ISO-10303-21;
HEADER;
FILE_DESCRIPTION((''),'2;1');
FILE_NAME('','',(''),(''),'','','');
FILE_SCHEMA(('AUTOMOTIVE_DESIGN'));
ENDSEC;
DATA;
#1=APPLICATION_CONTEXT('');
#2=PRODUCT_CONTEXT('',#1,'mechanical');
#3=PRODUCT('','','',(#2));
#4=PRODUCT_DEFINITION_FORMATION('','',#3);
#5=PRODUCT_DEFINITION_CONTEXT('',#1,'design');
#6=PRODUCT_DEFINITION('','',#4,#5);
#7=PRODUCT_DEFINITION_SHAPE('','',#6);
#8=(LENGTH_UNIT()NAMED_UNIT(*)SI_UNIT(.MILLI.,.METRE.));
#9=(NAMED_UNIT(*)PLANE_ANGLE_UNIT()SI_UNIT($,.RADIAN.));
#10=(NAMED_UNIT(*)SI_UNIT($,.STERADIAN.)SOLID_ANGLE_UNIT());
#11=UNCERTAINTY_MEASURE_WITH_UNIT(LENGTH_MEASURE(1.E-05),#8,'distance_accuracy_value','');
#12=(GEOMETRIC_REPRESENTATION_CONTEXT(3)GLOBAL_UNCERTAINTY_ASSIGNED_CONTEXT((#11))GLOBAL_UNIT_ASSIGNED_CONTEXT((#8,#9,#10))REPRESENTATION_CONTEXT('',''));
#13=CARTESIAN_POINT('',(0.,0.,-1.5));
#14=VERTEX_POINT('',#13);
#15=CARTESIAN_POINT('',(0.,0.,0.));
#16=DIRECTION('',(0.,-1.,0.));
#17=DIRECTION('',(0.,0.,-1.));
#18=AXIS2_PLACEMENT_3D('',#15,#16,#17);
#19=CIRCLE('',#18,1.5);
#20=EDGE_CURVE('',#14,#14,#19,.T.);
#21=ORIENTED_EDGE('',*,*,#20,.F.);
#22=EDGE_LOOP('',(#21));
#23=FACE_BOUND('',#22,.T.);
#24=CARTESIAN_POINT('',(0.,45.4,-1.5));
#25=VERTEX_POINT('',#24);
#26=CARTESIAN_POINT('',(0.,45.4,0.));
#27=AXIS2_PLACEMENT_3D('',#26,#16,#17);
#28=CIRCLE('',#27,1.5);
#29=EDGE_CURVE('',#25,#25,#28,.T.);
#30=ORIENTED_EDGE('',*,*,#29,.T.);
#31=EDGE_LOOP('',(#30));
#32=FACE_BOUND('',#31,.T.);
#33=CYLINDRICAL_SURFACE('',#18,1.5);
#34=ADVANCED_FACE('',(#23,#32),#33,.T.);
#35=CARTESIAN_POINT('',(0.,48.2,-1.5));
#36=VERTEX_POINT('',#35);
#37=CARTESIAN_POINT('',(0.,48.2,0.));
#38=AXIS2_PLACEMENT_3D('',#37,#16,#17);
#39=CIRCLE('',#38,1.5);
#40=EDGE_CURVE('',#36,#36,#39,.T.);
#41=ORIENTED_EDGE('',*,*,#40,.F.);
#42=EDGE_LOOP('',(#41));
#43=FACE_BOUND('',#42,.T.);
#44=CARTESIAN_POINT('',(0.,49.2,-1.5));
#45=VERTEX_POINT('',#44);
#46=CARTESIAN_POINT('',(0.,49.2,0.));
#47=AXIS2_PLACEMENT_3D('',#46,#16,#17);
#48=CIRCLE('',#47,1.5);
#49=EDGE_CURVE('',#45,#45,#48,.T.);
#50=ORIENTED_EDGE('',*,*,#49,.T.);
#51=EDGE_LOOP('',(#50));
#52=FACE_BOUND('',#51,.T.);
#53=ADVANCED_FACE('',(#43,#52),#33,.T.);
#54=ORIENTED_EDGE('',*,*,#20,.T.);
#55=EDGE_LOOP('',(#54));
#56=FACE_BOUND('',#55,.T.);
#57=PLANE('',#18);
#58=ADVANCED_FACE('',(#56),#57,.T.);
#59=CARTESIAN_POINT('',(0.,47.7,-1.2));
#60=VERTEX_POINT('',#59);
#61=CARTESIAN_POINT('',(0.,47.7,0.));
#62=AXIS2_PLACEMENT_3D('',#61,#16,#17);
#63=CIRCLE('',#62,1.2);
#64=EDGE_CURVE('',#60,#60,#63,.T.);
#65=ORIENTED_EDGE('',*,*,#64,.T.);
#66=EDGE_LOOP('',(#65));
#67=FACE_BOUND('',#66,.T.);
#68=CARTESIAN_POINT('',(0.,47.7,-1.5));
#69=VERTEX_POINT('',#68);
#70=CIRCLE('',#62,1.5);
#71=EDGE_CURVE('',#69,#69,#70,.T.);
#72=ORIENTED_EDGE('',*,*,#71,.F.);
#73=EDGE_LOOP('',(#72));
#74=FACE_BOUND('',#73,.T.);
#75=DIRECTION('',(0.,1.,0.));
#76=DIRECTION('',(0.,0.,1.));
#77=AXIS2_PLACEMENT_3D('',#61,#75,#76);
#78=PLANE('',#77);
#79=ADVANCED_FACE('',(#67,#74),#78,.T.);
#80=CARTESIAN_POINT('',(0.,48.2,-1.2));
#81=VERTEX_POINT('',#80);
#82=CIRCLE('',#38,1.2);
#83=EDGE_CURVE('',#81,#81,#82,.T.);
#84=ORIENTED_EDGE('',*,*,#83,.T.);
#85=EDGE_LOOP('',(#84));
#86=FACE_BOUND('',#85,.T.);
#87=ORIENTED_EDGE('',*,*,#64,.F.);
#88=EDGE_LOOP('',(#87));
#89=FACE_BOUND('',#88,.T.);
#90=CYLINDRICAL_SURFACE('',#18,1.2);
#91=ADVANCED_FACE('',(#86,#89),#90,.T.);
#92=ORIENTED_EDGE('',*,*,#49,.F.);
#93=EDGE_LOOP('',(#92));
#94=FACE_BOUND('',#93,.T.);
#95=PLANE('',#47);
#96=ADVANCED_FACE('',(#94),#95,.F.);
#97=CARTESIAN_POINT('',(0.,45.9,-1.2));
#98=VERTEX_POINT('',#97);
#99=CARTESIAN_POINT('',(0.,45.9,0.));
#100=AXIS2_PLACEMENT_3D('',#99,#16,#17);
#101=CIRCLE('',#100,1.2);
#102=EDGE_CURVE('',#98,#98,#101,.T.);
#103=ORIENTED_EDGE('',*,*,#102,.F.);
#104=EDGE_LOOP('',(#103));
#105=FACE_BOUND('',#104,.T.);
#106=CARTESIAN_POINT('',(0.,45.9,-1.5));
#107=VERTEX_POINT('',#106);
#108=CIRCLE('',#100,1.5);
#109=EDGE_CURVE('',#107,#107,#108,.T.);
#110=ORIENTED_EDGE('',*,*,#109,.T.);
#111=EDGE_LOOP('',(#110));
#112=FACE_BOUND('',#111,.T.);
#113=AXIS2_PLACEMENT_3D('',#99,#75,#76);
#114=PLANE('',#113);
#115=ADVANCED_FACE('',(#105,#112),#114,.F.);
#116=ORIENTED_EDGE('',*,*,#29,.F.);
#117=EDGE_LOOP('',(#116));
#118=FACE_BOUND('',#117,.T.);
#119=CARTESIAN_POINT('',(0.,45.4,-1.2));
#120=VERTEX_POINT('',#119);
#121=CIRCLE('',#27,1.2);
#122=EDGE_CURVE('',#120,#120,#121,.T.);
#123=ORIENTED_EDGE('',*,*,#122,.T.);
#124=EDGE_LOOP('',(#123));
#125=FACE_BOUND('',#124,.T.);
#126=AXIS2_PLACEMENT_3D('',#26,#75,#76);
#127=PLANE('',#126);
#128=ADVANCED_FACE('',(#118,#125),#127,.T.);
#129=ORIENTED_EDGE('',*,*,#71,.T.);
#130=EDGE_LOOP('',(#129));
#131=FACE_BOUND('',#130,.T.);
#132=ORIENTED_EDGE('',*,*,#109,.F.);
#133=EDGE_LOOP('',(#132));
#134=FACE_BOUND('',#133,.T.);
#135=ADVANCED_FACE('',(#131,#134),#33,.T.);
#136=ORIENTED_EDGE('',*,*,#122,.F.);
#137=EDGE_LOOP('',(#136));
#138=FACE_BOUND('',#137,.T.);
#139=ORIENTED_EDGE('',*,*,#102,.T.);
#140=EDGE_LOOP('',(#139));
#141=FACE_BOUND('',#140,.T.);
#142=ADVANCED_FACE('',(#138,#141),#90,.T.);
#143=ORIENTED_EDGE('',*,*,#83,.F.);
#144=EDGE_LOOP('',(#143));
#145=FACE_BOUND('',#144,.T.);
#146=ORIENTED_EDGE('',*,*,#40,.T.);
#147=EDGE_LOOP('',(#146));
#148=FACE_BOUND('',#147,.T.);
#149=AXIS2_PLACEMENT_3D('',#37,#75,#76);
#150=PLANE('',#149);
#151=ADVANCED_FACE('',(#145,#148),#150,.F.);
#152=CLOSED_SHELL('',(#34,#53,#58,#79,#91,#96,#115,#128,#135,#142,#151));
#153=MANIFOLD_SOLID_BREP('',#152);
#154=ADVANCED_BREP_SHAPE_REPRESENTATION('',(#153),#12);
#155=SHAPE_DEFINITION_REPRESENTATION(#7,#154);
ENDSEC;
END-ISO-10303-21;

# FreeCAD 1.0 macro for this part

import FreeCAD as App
import Part
import Sketcher

V = App.Vector

doc = App.newDocument("Part")
params = doc.addObject("Spreadsheet::Sheet", "Params")
for row, (alias, value) in enumerate([
    ("sketch1_width", "1 mm"),
    ("sketch1_width2", "49.2 mm"),
    ("sketch1_width3", "45.4 mm"),
    ("sketch1_width4", "0.5 mm"),
    ("sketch1_height", "1.5 mm"),
    ("revolution_angle", "360 deg"),
], start=1):
    params.set(f"A{row}", alias)
    params.set(f"B{row}", "=" + value)
    params.setAlias(f"B{row}", alias)

body = doc.addObject("PartDesign::Body", "Body")

# Sketch on YZ plane
sketch1 = body.newObject("Sketcher::SketchObject", "Sketch")
sketch1.AttachmentSupport = (doc.getObject("YZ_Plane"), [""])
sketch1.MapMode = "FlatFace"
sketch1.addGeometry([
    Part.LineSegment(V(49.2, 0, 0), V(0, 0, 0)),  # 0
    Part.LineSegment(V(0, 0, 0), V(0, -1.5, 0)),  # 1
    Part.LineSegment(V(0, -1.5, 0), V(45.4, -1.5, 0)),  # 2
    Part.LineSegment(V(45.4, -1.5, 0), V(45.4, -1.2, 0)),  # 3
    Part.LineSegment(V(45.4, -1.2, 0), V(45.9, -1.2, 0)),  # 4
    Part.LineSegment(V(45.9, -1.2, 0), V(45.9, -1.5, 0)),  # 5
    Part.LineSegment(V(45.9, -1.5, 0), V(47.7, -1.5, 0)),  # 6
    Part.LineSegment(V(47.7, -1.5, 0), V(47.7, -1.2, 0)),  # 7
    Part.LineSegment(V(47.7, -1.2, 0), V(48.2, -1.2, 0)),  # 8
    Part.LineSegment(V(48.2, -1.2, 0), V(48.2, -1.5, 0)),  # 9
    Part.LineSegment(V(48.2, -1.5, 0), V(49.2, -1.5, 0)),  # 10
    Part.LineSegment(V(49.2, -1.5, 0), V(49.2, 0, 0)),  # 11
], False)
sketch1.addConstraint([
    Sketcher.Constraint("Coincident", 0, 2, 1, 1),
    Sketcher.Constraint("Coincident", 1, 2, 2, 1),
    Sketcher.Constraint("Coincident", 2, 2, 3, 1),
    Sketcher.Constraint("Coincident", 3, 2, 4, 1),
    Sketcher.Constraint("Coincident", 4, 2, 5, 1),
    Sketcher.Constraint("Coincident", 5, 2, 6, 1),
    Sketcher.Constraint("Coincident", 6, 2, 7, 1),
    Sketcher.Constraint("Coincident", 7, 2, 8, 1),
    Sketcher.Constraint("Coincident", 8, 2, 9, 1),
    Sketcher.Constraint("Coincident", 9, 2, 10, 1),
    Sketcher.Constraint("Coincident", 10, 2, 11, 1),
    Sketcher.Constraint("Coincident", 11, 2, 0, 1),
    Sketcher.Constraint("Horizontal", 0),
    Sketcher.Constraint("Vertical", 1),
    Sketcher.Constraint("Horizontal", 2),
    Sketcher.Constraint("Vertical", 3),
    Sketcher.Constraint("Horizontal", 4),
    Sketcher.Constraint("Vertical", 5),
    Sketcher.Constraint("Horizontal", 6),
    Sketcher.Constraint("Vertical", 7),
    Sketcher.Constraint("Horizontal", 8),
    Sketcher.Constraint("Vertical", 9),
    Sketcher.Constraint("Horizontal", 10),
    Sketcher.Constraint("Vertical", 11),
    Sketcher.Constraint("Coincident", 0, 2, -1, 1),
    Sketcher.Constraint("Horizontal", 2, 2, 5, 2),
    Sketcher.Constraint("Horizontal", 4, 2, 7, 2),
    Sketcher.Constraint("Horizontal", 6, 2, 9, 2),
    Sketcher.Constraint("Equal", 4, 8),
    Sketcher.Constraint("DistanceX", 10, 1, 10, 2, 1.0),
    Sketcher.Constraint("DistanceX", 0, 2, 0, 1, 49.2),
    Sketcher.Constraint("DistanceX", 2, 1, 2, 2, 45.4),
    Sketcher.Constraint("DistanceX", 4, 1, 4, 2, 0.5),
    Sketcher.Constraint("DistanceY", 1, 2, 1, 1, 1.5),
    Sketcher.Constraint("DistanceY", 3, 1, 3, 2, 0.3),
])
sketch1.setExpression("Constraints[29]", "Params.sketch1_width")
sketch1.setExpression("Constraints[30]", "Params.sketch1_width2")
sketch1.setExpression("Constraints[31]", "Params.sketch1_width3")
sketch1.setExpression("Constraints[32]", "Params.sketch1_width4")
sketch1.setExpression("Constraints[33]", "Params.sketch1_height")
revolution = body.newObject("PartDesign::Revolution", "Revolution")
revolution.Profile = sketch1
revolution.ReferenceAxis = (sketch1, ["H_Axis"])
revolution.setExpression("Angle", "Params.revolution_angle")

doc.recompute()
